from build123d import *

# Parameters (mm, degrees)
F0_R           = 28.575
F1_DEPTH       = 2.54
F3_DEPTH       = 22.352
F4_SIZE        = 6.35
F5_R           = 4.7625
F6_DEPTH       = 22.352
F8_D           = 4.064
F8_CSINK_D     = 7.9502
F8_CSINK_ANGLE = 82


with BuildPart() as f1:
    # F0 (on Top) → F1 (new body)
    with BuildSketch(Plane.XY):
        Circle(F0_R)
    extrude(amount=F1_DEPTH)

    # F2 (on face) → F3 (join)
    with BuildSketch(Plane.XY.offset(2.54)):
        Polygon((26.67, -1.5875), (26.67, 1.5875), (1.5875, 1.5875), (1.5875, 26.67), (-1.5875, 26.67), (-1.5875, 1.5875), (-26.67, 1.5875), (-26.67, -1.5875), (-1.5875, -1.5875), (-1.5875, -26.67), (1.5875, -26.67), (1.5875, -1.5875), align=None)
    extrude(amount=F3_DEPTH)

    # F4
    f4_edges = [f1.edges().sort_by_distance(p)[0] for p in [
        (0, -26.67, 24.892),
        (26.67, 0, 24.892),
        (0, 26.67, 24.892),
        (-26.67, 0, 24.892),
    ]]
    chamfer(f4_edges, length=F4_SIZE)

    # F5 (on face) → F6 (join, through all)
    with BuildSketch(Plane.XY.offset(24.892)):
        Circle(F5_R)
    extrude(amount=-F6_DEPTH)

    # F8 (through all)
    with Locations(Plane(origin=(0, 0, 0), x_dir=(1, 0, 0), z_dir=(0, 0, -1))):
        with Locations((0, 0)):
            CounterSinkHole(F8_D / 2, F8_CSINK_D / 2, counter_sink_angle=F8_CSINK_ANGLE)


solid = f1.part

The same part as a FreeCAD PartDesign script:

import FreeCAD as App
import Part
import Sketcher
Q = App.Units.Quantity


def edges_at(feature, points):
    """Names of the edges that pass closest to the given points."""
    edges = feature.Shape.Edges
    near = lambda p: min(range(len(edges)), key=lambda i: edges[i].distToShape(Part.Vertex(*p))[0])
    return sorted({f"Edge{near(p) + 1}" for p in points})


def add_polygon(sketch, points):
    """Adds a closed chain of lines whose ends are joined by coincident constraints."""
    first, n = sketch.GeometryCount, len(points)
    for a, b in zip(points, points[1:] + points[:1]):
        sketch.addGeometry(Part.LineSegment(App.Vector(*a, 0), App.Vector(*b, 0)), False)
    for i in range(n):
        sketch.addConstraint(Sketcher.Constraint("Coincident", first + i, 2, first + (i + 1) % n, 1))

doc = App.newDocument("Part")
body = doc.addObject("PartDesign::Body", "Body")

# Sketch on XY plane
sketch1 = doc.addObject("Sketcher::SketchObject", "Sketch")
body.addObject(sketch1)
sketch1.AttachmentSupport = (doc.XY_Plane, [""])
sketch1.MapMode = "FlatFace"
sketch1.addGeometry(Part.Circle(App.Vector(0, 0, 0), App.Vector(0, 0, 1), 29), False)
sketch1.addConstraint([
    Sketcher.Constraint("Coincident", 0, 3, -1, 1),
    Sketcher.Constraint("Diameter", 0, Q("2.25 in")),
])
pad1 = doc.addObject("PartDesign::Pad", "Pad")
body.addObject(pad1)
pad1.Profile = sketch1
pad1.Length = Q("0.1 in")

# Sketch on XY plane
sketch2 = doc.addObject("Sketcher::SketchObject", "Sketch001")
body.addObject(sketch2)
sketch2.AttachmentSupport = (doc.XY_Plane, [""])
sketch2.MapMode = "FlatFace"
sketch2.AttachmentOffset = App.Placement(App.Vector(0, 0, 0.1 * 25.4), App.Rotation())
add_polygon(sketch2, [(26.7, -1.6), (26.7, 1.6), (1.6, 1.6), (1.6, 26.7), (-1.6, 26.7), (-1.6, 1.6), (-26.7, 1.6), (-26.7, -1.6), (-1.6, -1.6), (-1.6, -26.7), (1.6, -26.7), (1.6, -1.6)])  # lines 0-11
sketch2.addConstraint([
    Sketcher.Constraint("Vertical", 0),
    Sketcher.Constraint("Horizontal", 1),
    Sketcher.Constraint("Vertical", 2),
    Sketcher.Constraint("Horizontal", 3),
    Sketcher.Constraint("Vertical", 4),
    Sketcher.Constraint("Horizontal", 5),
    Sketcher.Constraint("Vertical", 6),
    Sketcher.Constraint("Horizontal", 7),
    Sketcher.Constraint("Vertical", 8),
    Sketcher.Constraint("Horizontal", 9),
    Sketcher.Constraint("Vertical", 10),
    Sketcher.Constraint("Horizontal", 11),
    Sketcher.Constraint("Symmetric", 0, 2, 6, 2, -1, 1),
    Sketcher.Constraint("Symmetric", 2, 2, 8, 2, -1, 1),
    Sketcher.Constraint("Symmetric", 4, 2, 10, 2, -1, 1),
    Sketcher.Constraint("Symmetric", 1, 2, 4, 2, -2),
    Sketcher.Constraint("Equal", 9, 0),
    Sketcher.Constraint("Equal", 11, 2),
    Sketcher.Constraint("DistanceX", 5, 2, 0, 2, Q("2.1 in")),
    Sketcher.Constraint("DistanceX", 3, 2, 3, 1, Q("0.125 in")),
])
pad2 = doc.addObject("PartDesign::Pad", "Pad001")
body.addObject(pad2)
pad2.Profile = sketch2
pad2.Length = Q("0.88 in")
doc.recompute()

chamfer = doc.addObject("PartDesign::Chamfer", "Chamfer")
body.addObject(chamfer)
chamfer.Base = (pad2, edges_at(pad2, [
    (0, -26.67, 24.892),
    (26.67, 0, 24.892),
    (0, 26.67, 24.892),
    (-26.67, 0, 24.892),
]))
chamfer.Size = Q("0.25 in")

# Sketch on XY plane
sketch3 = doc.addObject("Sketcher::SketchObject", "Sketch002")
body.addObject(sketch3)
sketch3.AttachmentSupport = (doc.XY_Plane, [""])
sketch3.MapMode = "FlatFace"
sketch3.AttachmentOffset = App.Placement(App.Vector(0, 0, 0.98 * 25.4), App.Rotation())
sketch3.addGeometry(Part.Circle(App.Vector(0, 0, 0), App.Vector(0, 0, 1), 4.8), False)
sketch3.addConstraint([
    Sketcher.Constraint("Coincident", 0, 3, -1, 1),
    Sketcher.Constraint("Diameter", 0, Q("0.375 in")),
])
pad3 = doc.addObject("PartDesign::Pad", "Pad002")
body.addObject(pad3)
pad3.Profile = sketch3
pad3.Type = "UpToLast"
pad3.Reversed = True

# Sketch on XY plane
sketch4 = doc.addObject("Sketcher::SketchObject", "Sketch003")
body.addObject(sketch4)
sketch4.AttachmentSupport = (doc.XY_Plane, [""])
sketch4.MapMode = "FlatFace"
sketch4.addGeometry(Part.Circle(App.Vector(0, 0, 0), App.Vector(0, 0, 1), 2), False)
sketch4.addConstraint([
    Sketcher.Constraint("Coincident", 0, 3, -1, 1),
    Sketcher.Constraint("Diameter", 0, Q("0.16 in")),
])
doc.recompute()
hole = doc.addObject("PartDesign::Hole", "Hole")
body.addObject(hole)
hole.Profile = sketch4
hole.ThreadType = "None"
hole.Diameter = Q("0.16 in")
hole.DepthType = "ThroughAll"
hole.HoleCutType = "Countersink"
hole.HoleCutDiameter = Q("0.313 in")
hole.HoleCutCountersinkAngle = 82
hole.Reversed = True

doc.recompute()
